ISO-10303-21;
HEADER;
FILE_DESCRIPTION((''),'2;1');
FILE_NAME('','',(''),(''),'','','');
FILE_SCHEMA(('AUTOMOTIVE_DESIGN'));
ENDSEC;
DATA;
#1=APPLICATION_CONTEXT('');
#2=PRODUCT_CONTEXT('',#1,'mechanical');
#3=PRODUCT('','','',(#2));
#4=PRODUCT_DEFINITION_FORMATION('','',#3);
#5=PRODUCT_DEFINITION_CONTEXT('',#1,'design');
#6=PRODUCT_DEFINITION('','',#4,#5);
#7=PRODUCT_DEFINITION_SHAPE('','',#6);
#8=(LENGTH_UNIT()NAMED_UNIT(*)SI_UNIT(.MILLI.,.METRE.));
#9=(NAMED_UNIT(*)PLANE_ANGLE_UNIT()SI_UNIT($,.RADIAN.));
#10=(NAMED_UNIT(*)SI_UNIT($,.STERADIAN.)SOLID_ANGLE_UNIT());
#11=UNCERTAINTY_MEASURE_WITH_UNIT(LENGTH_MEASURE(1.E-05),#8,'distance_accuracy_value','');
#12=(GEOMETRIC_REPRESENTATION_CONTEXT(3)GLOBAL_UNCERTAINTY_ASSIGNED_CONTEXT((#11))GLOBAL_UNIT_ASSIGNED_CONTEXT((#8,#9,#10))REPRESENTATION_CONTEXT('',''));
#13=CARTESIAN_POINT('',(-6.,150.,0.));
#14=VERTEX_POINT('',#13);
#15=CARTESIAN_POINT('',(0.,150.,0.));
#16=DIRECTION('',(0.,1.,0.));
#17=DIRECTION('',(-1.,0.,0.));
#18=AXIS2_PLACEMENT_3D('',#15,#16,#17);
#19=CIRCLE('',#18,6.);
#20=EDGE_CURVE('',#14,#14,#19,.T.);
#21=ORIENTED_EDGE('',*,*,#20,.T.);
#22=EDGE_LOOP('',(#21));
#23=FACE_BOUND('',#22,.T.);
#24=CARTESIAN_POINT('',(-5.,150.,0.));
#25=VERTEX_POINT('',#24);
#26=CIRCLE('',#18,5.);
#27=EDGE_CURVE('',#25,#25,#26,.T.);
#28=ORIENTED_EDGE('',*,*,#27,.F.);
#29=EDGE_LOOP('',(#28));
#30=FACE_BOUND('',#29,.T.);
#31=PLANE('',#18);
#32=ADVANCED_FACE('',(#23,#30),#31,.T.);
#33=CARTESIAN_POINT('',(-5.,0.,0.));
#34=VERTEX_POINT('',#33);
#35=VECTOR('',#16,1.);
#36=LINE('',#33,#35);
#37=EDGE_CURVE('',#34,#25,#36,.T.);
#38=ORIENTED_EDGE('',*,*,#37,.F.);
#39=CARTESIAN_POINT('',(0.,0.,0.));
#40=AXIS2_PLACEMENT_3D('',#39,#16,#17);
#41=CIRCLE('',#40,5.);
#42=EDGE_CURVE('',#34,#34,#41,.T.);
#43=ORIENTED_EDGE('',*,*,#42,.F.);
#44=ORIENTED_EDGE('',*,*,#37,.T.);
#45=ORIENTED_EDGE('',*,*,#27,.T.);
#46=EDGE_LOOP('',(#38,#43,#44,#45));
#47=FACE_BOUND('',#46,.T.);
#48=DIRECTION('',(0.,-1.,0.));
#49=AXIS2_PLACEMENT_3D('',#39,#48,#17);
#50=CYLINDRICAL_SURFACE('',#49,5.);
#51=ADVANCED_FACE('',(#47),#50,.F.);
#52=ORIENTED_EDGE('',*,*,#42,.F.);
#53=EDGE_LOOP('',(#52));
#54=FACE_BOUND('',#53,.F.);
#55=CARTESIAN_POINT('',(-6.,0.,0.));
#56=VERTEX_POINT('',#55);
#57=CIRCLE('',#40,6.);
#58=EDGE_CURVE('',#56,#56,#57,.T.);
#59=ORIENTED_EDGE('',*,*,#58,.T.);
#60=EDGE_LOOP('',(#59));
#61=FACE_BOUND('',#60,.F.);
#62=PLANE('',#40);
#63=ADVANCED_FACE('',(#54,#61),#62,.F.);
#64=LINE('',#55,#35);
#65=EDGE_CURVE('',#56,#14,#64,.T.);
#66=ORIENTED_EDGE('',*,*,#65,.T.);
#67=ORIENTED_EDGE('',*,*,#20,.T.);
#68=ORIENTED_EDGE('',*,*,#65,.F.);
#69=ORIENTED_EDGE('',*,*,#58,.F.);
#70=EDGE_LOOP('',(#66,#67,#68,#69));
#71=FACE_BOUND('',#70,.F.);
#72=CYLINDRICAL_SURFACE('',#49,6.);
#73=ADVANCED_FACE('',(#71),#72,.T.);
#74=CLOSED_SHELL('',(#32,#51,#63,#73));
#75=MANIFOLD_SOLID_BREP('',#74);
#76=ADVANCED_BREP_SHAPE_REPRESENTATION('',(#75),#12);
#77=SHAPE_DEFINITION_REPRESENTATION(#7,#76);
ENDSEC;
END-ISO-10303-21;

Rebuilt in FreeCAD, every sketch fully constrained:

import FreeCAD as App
import Part
import Sketcher

V = App.Vector

doc = App.newDocument("Part")
body = doc.addObject("PartDesign::Body", "Body")

sketch1 = body.newObject("Sketcher::SketchObject", "Sketch")
sketch1.AttachmentSupport = (doc.getObject("XZ_Plane"), [""])
sketch1.MapMode = "FlatFace"
sketch1.addGeometry(Part.Circle(V(0, 0, 0), V(0, 0, 1), 6), False)
sketch1.addGeometry(Part.Circle(V(0, 0, 0), V(0, 0, 1), 5), False)
sketch1.addConstraint(Sketcher.Constraint("Coincident", 0, 3, -1, 1))
sketch1.addConstraint(Sketcher.Constraint("Coincident", 1, 3, -1, 1))
sketch1.addConstraint(Sketcher.Constraint("Diameter", 0, 12.0))
sketch1.addConstraint(Sketcher.Constraint("Diameter", 1, 10.0))
pad1 = body.newObject("PartDesign::Pad", "Pad")
pad1.Profile = sketch1
pad1.Length = 150
pad1.Reversed = True

doc.recompute()
